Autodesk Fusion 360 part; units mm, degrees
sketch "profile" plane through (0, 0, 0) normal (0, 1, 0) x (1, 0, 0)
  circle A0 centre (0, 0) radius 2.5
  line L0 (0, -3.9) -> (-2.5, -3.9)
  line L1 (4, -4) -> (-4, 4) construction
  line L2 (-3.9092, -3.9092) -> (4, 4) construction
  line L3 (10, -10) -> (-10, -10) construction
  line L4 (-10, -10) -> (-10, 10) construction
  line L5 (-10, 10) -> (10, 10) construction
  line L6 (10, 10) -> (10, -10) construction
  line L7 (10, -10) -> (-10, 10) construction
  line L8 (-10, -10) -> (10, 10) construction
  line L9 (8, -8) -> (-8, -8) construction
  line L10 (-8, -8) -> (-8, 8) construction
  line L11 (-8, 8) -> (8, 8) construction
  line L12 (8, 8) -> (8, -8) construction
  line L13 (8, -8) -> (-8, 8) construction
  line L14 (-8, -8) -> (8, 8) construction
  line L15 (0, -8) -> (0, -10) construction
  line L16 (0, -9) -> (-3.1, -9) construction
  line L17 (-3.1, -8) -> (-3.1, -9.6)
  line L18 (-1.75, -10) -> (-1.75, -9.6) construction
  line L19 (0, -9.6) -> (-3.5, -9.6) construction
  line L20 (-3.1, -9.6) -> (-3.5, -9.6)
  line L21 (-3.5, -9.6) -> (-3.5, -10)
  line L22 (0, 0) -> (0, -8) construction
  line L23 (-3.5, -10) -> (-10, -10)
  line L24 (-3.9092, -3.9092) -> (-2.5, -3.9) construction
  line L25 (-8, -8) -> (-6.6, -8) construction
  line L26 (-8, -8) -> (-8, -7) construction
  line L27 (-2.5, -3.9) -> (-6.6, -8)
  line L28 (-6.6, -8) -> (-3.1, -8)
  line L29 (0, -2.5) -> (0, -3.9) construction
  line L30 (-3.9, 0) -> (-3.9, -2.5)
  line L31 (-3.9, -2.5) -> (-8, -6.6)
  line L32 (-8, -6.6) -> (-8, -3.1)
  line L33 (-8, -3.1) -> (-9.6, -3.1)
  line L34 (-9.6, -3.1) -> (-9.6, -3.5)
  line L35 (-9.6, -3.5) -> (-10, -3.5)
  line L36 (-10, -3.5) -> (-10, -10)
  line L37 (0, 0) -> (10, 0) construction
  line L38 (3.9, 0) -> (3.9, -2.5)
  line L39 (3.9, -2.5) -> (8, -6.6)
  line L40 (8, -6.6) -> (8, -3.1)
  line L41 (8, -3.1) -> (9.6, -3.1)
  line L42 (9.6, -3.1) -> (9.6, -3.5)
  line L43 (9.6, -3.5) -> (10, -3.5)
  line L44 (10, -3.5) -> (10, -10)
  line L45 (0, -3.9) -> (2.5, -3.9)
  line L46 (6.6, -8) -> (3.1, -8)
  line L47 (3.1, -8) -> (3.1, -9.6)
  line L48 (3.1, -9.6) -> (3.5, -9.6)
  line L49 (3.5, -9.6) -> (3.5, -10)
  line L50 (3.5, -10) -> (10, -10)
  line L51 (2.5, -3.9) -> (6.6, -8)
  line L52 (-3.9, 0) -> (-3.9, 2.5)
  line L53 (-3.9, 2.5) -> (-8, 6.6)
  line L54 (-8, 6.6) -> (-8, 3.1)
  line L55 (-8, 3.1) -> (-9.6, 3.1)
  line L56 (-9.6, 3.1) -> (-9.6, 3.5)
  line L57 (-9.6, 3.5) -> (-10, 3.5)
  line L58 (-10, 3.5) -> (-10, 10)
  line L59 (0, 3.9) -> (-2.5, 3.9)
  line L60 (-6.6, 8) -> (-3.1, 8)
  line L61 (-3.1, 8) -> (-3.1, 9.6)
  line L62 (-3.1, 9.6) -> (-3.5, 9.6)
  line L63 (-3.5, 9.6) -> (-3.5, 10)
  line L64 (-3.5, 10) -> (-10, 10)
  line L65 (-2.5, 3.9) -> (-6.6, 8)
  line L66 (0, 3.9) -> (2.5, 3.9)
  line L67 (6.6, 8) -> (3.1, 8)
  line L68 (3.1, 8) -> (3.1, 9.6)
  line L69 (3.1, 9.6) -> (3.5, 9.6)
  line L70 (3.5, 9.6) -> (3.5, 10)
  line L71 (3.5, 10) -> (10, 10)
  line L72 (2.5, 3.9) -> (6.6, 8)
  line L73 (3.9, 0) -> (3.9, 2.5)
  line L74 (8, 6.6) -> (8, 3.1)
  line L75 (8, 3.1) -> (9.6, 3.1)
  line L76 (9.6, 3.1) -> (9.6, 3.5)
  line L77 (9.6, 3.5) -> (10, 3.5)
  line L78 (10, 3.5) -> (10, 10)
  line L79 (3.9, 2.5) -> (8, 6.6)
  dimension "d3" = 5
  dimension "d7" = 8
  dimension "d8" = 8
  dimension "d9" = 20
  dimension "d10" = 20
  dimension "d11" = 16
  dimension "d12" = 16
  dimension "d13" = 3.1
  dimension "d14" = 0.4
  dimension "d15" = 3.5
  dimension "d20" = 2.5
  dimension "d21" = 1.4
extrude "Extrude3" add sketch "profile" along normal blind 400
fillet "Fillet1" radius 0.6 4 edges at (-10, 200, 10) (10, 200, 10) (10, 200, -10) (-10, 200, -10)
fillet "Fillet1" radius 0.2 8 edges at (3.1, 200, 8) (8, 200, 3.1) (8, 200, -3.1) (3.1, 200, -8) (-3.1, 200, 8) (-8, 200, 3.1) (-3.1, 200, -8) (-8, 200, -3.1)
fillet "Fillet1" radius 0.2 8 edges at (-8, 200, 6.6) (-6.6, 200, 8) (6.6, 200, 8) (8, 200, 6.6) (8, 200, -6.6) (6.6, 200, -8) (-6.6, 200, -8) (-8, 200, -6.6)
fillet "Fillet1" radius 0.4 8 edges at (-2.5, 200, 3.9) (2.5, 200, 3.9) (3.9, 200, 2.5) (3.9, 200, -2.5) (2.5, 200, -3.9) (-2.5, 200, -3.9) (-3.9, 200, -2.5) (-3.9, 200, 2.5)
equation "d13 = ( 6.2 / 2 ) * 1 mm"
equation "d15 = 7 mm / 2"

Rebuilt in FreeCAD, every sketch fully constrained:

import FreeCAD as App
import Part
import Sketcher

V = App.Vector
Q = App.Units.Quantity


def edges_at(feature, points):
    """Names of the edges that pass closest to the given points."""
    edges = feature.Shape.Edges
    near = lambda p: min(range(len(edges)), key=lambda i: edges[i].distToShape(Part.Vertex(*p))[0])
    return sorted({f"Edge{near(p) + 1}" for p in points})


def add_polygon(sketch, points):
    """Adds a closed chain of lines whose ends are joined by coincident constraints."""
    first, n = sketch.GeometryCount, len(points)
    for a, b in zip(points, points[1:] + points[:1]):
        sketch.addGeometry(Part.LineSegment(App.Vector(*a, 0), App.Vector(*b, 0)), False)
    for i in range(n):
        sketch.addConstraint(Sketcher.Constraint("Coincident", first + i, 2, first + (i + 1) % n, 1))

doc = App.newDocument("Part")
body = doc.addObject("PartDesign::Body", "Body")

sketch1 = body.newObject("Sketcher::SketchObject", "Sketch")
sketch1.AttachmentSupport = (doc.getObject("XZ_Plane"), [""])
sketch1.MapMode = "FlatFace"
add_polygon(sketch1, [(-2.5, 3.9), (2.5, 3.9), (6.6, 8), (3.1, 8), (3.1, 9.6), (3.5, 9.6), (3.5, 10), (10, 10), (10, 3.5), (9.6, 3.5), (9.6, 3.1), (8, 3.1), (8, 6.6), (3.9, 2.5), (3.9, -2.5), (8, -6.6), (8, -3.1), (9.6, -3.1), (9.6, -3.5), (10, -3.5), (10, -10), (3.5, -10), (3.5, -9.6), (3.1, -9.6), (3.1, -8), (6.6, -8), (2.5, -3.9), (-2.5, -3.9), (-6.6, -8), (-3.1, -8), (-3.1, -9.6), (-3.5, -9.6), (-3.5, -10), (-10, -10), (-10, -3.5), (-9.6, -3.5), (-9.6, -3.1), (-8, -3.1), (-8, -6.6), (-3.9, -2.5), (-3.9, 2.5), (-8, 6.6), (-8, 3.1), (-9.6, 3.1), (-9.6, 3.5), (-10, 3.5), (-10, 10), (-3.5, 10), (-3.5, 9.6), (-3.1, 9.6), (-3.1, 8), (-6.6, 8)])
sketch1.addGeometry(Part.Circle(V(0, 0, 0), V(0, 0, 1), 2.5), False)
sketch1.addConstraint(Sketcher.Constraint("Horizontal", 0))
sketch1.addConstraint(Sketcher.Constraint("Horizontal", 2))
sketch1.addConstraint(Sketcher.Constraint("Vertical", 3))
sketch1.addConstraint(Sketcher.Constraint("Horizontal", 4))
sketch1.addConstraint(Sketcher.Constraint("Vertical", 5))
sketch1.addConstraint(Sketcher.Constraint("Horizontal", 6))
sketch1.addConstraint(Sketcher.Constraint("Vertical", 7))
sketch1.addConstraint(Sketcher.Constraint("Horizontal", 8))
sketch1.addConstraint(Sketcher.Constraint("Vertical", 9))
sketch1.addConstraint(Sketcher.Constraint("Horizontal", 10))
sketch1.addConstraint(Sketcher.Constraint("Vertical", 11))
sketch1.addConstraint(Sketcher.Constraint("Vertical", 13))
sketch1.addConstraint(Sketcher.Constraint("Vertical", 15))
sketch1.addConstraint(Sketcher.Constraint("Horizontal", 16))
sketch1.addConstraint(Sketcher.Constraint("Vertical", 17))
sketch1.addConstraint(Sketcher.Constraint("Horizontal", 18))
sketch1.addConstraint(Sketcher.Constraint("Vertical", 19))
sketch1.addConstraint(Sketcher.Constraint("Horizontal", 20))
sketch1.addConstraint(Sketcher.Constraint("Vertical", 21))
sketch1.addConstraint(Sketcher.Constraint("Horizontal", 22))
sketch1.addConstraint(Sketcher.Constraint("Vertical", 23))
sketch1.addConstraint(Sketcher.Constraint("Horizontal", 24))
sketch1.addConstraint(Sketcher.Constraint("Horizontal", 26))
sketch1.addConstraint(Sketcher.Constraint("Horizontal", 28))
sketch1.addConstraint(Sketcher.Constraint("Vertical", 29))
sketch1.addConstraint(Sketcher.Constraint("Horizontal", 30))
sketch1.addConstraint(Sketcher.Constraint("Vertical", 31))
sketch1.addConstraint(Sketcher.Constraint("Horizontal", 32))
sketch1.addConstraint(Sketcher.Constraint("Vertical", 33))
sketch1.addConstraint(Sketcher.Constraint("Horizontal", 34))
sketch1.addConstraint(Sketcher.Constraint("Vertical", 35))
sketch1.addConstraint(Sketcher.Constraint("Horizontal", 36))
sketch1.addConstraint(Sketcher.Constraint("Vertical", 37))
sketch1.addConstraint(Sketcher.Constraint("Vertical", 39))
sketch1.addConstraint(Sketcher.Constraint("Vertical", 41))
sketch1.addConstraint(Sketcher.Constraint("Horizontal", 42))
sketch1.addConstraint(Sketcher.Constraint("Vertical", 43))
sketch1.addConstraint(Sketcher.Constraint("Horizontal", 44))
sketch1.addConstraint(Sketcher.Constraint("Vertical", 45))
sketch1.addConstraint(Sketcher.Constraint("Horizontal", 46))
sketch1.addConstraint(Sketcher.Constraint("Vertical", 47))
sketch1.addConstraint(Sketcher.Constraint("Horizontal", 48))
sketch1.addConstraint(Sketcher.Constraint("Vertical", 49))
sketch1.addConstraint(Sketcher.Constraint("Horizontal", 50))
sketch1.addConstraint(Sketcher.Constraint("Coincident", 52, 3, -1, 1))
sketch1.addConstraint(Sketcher.Constraint("Symmetric", 0, 2, 26, 2, -1, 1))
sketch1.addConstraint(Sketcher.Constraint("Symmetric", 1, 2, 27, 2, -1, 1))
sketch1.addConstraint(Sketcher.Constraint("Symmetric", 3, 2, 29, 2, -1, 1))
sketch1.addConstraint(Sketcher.Constraint("Symmetric", 5, 2, 31, 2, -1, 1))
sketch1.addConstraint(Sketcher.Constraint("Symmetric", 7, 2, 33, 2, -1, 1))
sketch1.addConstraint(Sketcher.Constraint("Symmetric", 9, 2, 35, 2, -1, 1))
sketch1.addConstraint(Sketcher.Constraint("Symmetric", 11, 2, 37, 2, -1, 1))
sketch1.addConstraint(Sketcher.Constraint("Symmetric", 12, 2, 38, 2, -1, 1))
sketch1.addConstraint(Sketcher.Constraint("Symmetric", 14, 2, 40, 2, -1, 1))
sketch1.addConstraint(Sketcher.Constraint("Symmetric", 16, 2, 42, 2, -1, 1))
sketch1.addConstraint(Sketcher.Constraint("Symmetric", 18, 2, 44, 2, -1, 1))
sketch1.addConstraint(Sketcher.Constraint("Symmetric", 20, 2, 46, 2, -1, 1))
sketch1.addConstraint(Sketcher.Constraint("Symmetric", 22, 2, 48, 2, -1, 1))
sketch1.addConstraint(Sketcher.Constraint("Symmetric", 24, 2, 50, 2, -1, 1))
sketch1.addConstraint(Sketcher.Constraint("Symmetric", 24, 2, 27, 2, -2))
sketch1.addConstraint(Sketcher.Constraint("Symmetric", 22, 2, 29, 2, -2))
sketch1.addConstraint(Sketcher.Constraint("Symmetric", 20, 2, 31, 2, -2))
sketch1.addConstraint(Sketcher.Constraint("Symmetric", 18, 2, 33, 2, -2))
sketch1.addConstraint(Sketcher.Constraint("Symmetric", 16, 2, 35, 2, -2))
sketch1.addConstraint(Sketcher.Constraint("Symmetric", 14, 2, 37, 2, -2))
sketch1.addConstraint(Sketcher.Constraint("Parallel", 1, 12))
sketch1.addConstraint(Sketcher.Constraint("Perpendicular", 12, 14))
sketch1.addConstraint(Sketcher.Constraint("Parallel", 14, 25))
sketch1.addConstraint(Sketcher.Constraint("Perpendicular", 38, 40))
sketch1.addConstraint(Sketcher.Constraint("Parallel", 40, 51))
sketch1.addConstraint(Sketcher.Constraint("Horizontal", 13, 2, 38, 2))
sketch1.addConstraint(Sketcher.Constraint("Equal", 4, 8))
sketch1.addConstraint(Sketcher.Constraint("Equal", 42, 3))
sketch1.addConstraint(Sketcher.Constraint("Equal", 48, 5))
sketch1.addConstraint(Sketcher.Constraint("Equal", 46, 7))
sketch1.addConstraint(Sketcher.Constraint("Equal", 5, 9))
sketch1.addConstraint(Sketcher.Constraint("Equal", 50, 11))
sketch1.addConstraint(Sketcher.Constraint("Equal", 26, 13))
sketch1.addConstraint(Sketcher.Constraint("Equal", 1, 12))
sketch1.addConstraint(Sketcher.Constraint("Diameter", 52, Q("5 mm")))
sketch1.addConstraint(Sketcher.Constraint("DistanceX", 0, 1, 0, 2, Q("5 mm")))
sketch1.addConstraint(Sketcher.Constraint("DistanceX", 2, 2, 2, 1, Q("3.5 mm")))
sketch1.addConstraint(Sketcher.Constraint("DistanceX", 4, 1, 4, 2, Q("0.4 mm")))
sketch1.addConstraint(Sketcher.Constraint("DistanceY", -1, 1, 1, 2, Q("8 mm")))
sketch1.addConstraint(Sketcher.Constraint("DistanceX", -1, 1, 2, 2, Q("3.1 mm")))
sketch1.addConstraint(Sketcher.Constraint("DistanceX", 6, 1, 6, 2, Q("6.5 mm")))
pad1 = body.newObject("PartDesign::Pad", "Pad")
pad1.Profile = sketch1
pad1.Length = 400
pad1.Reversed = True
doc.recompute()

fillet = body.newObject("PartDesign::Fillet", "Fillet")
fillet.Base = (pad1, edges_at(pad1, [
    (-10, 200, 10),
    (10, 200, 10),
    (10, 200, -10),
    (-10, 200, -10),
]))
fillet.Radius = 0.6
doc.recompute()

fillet2 = body.newObject("PartDesign::Fillet", "Fillet001")
fillet2.Base = (fillet, edges_at(fillet, [
    (3.1, 200, 8),
    (8, 200, 3.1),
    (8, 200, -3.1),
    (3.1, 200, -8),
    (-3.1, 200, 8),
    (-8, 200, 3.1),
    (-3.1, 200, -8),
    (-8, 200, -3.1),
]))
fillet2.Radius = 0.2
doc.recompute()

fillet3 = body.newObject("PartDesign::Fillet", "Fillet002")
fillet3.Base = (fillet2, edges_at(fillet2, [
    (-8, 200, 6.6),
    (-6.6, 200, 8),
    (6.6, 200, 8),
    (8, 200, 6.6),
    (8, 200, -6.6),
    (6.6, 200, -8),
    (-6.6, 200, -8),
    (-8, 200, -6.6),
]))
fillet3.Radius = 0.2
doc.recompute()

fillet4 = body.newObject("PartDesign::Fillet", "Fillet003")
fillet4.Base = (fillet3, edges_at(fillet3, [
    (-2.5, 200, 3.9),
    (2.5, 200, 3.9),
    (3.9, 200, 2.5),
    (3.9, 200, -2.5),
    (2.5, 200, -3.9),
    (-2.5, 200, -3.9),
    (-3.9, 200, -2.5),
    (-3.9, 200, 2.5),
]))
fillet4.Radius = 0.4

doc.recompute()
